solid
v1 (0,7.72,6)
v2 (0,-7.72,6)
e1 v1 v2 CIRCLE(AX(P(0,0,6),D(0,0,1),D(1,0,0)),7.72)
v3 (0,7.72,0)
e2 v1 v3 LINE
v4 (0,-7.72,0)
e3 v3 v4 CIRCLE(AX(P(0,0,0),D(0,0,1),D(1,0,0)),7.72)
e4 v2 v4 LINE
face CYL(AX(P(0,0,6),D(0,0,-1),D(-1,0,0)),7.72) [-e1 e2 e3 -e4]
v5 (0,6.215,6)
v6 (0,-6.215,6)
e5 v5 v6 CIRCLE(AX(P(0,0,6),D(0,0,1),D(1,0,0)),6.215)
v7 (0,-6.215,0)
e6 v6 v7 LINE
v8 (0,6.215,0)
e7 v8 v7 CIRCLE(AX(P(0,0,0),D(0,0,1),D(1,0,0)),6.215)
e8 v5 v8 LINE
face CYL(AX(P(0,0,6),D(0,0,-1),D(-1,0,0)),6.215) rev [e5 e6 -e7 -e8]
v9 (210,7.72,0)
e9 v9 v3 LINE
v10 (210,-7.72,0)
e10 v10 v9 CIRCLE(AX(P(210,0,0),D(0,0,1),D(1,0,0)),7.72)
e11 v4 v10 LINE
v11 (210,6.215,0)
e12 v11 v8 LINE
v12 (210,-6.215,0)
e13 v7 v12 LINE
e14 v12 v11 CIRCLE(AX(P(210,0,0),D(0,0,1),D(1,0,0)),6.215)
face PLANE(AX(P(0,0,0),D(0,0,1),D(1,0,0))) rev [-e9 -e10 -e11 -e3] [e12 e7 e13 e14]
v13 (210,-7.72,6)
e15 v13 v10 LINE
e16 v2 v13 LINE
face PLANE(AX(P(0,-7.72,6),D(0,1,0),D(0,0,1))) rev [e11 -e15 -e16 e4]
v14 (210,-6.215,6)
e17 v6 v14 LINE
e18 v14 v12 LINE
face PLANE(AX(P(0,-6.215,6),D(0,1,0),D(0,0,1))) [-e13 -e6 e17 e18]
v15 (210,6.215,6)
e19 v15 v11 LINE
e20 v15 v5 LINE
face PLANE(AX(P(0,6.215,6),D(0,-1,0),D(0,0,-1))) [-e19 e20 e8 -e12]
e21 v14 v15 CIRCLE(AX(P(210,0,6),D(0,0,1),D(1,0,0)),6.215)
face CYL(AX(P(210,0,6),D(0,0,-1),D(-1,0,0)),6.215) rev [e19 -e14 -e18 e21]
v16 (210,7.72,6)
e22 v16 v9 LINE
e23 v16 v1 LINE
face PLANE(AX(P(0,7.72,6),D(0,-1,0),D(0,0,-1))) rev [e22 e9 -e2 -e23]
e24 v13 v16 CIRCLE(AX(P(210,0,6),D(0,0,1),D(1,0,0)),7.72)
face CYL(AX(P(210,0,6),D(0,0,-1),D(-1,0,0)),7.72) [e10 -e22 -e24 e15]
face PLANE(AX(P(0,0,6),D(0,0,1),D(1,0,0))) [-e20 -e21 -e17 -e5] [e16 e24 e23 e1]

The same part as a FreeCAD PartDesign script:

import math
import FreeCAD as App
import Part
import Sketcher
from FreeCAD import Vector
Q = App.Units.Quantity

doc = App.newDocument("Part")
body = doc.addObject("PartDesign::Body", "Body")

sketch1 = body.newObject("Sketcher::SketchObject", "Sketch")
sketch1.AttachmentSupport = (doc.getObject("XY_Plane"), [""])
sketch1.MapMode = "FlatFace"
sketch1.addGeometry(Part.LineSegment(Vector(210, 8, 0), Vector(0, 8, 0)), False)
sketch1.addGeometry(Part.ArcOfCircle(Part.Circle(Vector(0, 0, 0), Vector(0, 0, 1), 8), math.radians(90), math.radians(270)), False)
sketch1.addGeometry(Part.LineSegment(Vector(0, -8, 0), Vector(210, -8, 0)), False)
sketch1.addGeometry(Part.ArcOfCircle(Part.Circle(Vector(210, 0, 0), Vector(0, 0, 1), 8), math.radians(-90), math.radians(90)), False)
sketch1.addGeometry(Part.LineSegment(Vector(0, 6, 0), Vector(210, 6, 0)), False)
sketch1.addGeometry(Part.ArcOfCircle(Part.Circle(Vector(210, 0, 0), Vector(0, 0, 1), 6), math.radians(-90), math.radians(90)), False)
sketch1.addGeometry(Part.LineSegment(Vector(210, -6, 0), Vector(0, -6, 0)), False)
sketch1.addGeometry(Part.ArcOfCircle(Part.Circle(Vector(0, 0, 0), Vector(0, 0, 1), 6), math.radians(90), math.radians(270)), False)
sketch1.addConstraint(Sketcher.Constraint("Tangent", 0, 2, 1, 1))
sketch1.addConstraint(Sketcher.Constraint("Tangent", 1, 2, 2, 1))
sketch1.addConstraint(Sketcher.Constraint("Tangent", 2, 2, 3, 1))
sketch1.addConstraint(Sketcher.Constraint("Tangent", 3, 2, 0, 1))
sketch1.addConstraint(Sketcher.Constraint("Tangent", 4, 2, 5, 2))
sketch1.addConstraint(Sketcher.Constraint("Tangent", 5, 1, 6, 1))
sketch1.addConstraint(Sketcher.Constraint("Tangent", 6, 2, 7, 2))
sketch1.addConstraint(Sketcher.Constraint("Tangent", 7, 1, 4, 1))
sketch1.addConstraint(Sketcher.Constraint("Horizontal", 0))
sketch1.addConstraint(Sketcher.Constraint("Horizontal", 2))
sketch1.addConstraint(Sketcher.Constraint("Horizontal", 4))
sketch1.addConstraint(Sketcher.Constraint("Horizontal", 6))
sketch1.addConstraint(Sketcher.Constraint("Coincident", 1, 3, -1, 1))
sketch1.addConstraint(Sketcher.Constraint("Coincident", 7, 3, -1, 1))
sketch1.addConstraint(Sketcher.Constraint("Vertical", 5, 3, 2, 2))
sketch1.addConstraint(Sketcher.Constraint("DistanceX", 0, 2, 0, 1, Q("210 mm")))
sketch1.addConstraint(Sketcher.Constraint("Radius", 1, Q("7.72 mm")))
sketch1.addConstraint(Sketcher.Constraint("Radius", 5, Q("6.215 mm")))
pad1 = body.newObject("PartDesign::Pad", "Pad")
pad1.Profile = sketch1
pad1.Length = 6

doc.recompute()
